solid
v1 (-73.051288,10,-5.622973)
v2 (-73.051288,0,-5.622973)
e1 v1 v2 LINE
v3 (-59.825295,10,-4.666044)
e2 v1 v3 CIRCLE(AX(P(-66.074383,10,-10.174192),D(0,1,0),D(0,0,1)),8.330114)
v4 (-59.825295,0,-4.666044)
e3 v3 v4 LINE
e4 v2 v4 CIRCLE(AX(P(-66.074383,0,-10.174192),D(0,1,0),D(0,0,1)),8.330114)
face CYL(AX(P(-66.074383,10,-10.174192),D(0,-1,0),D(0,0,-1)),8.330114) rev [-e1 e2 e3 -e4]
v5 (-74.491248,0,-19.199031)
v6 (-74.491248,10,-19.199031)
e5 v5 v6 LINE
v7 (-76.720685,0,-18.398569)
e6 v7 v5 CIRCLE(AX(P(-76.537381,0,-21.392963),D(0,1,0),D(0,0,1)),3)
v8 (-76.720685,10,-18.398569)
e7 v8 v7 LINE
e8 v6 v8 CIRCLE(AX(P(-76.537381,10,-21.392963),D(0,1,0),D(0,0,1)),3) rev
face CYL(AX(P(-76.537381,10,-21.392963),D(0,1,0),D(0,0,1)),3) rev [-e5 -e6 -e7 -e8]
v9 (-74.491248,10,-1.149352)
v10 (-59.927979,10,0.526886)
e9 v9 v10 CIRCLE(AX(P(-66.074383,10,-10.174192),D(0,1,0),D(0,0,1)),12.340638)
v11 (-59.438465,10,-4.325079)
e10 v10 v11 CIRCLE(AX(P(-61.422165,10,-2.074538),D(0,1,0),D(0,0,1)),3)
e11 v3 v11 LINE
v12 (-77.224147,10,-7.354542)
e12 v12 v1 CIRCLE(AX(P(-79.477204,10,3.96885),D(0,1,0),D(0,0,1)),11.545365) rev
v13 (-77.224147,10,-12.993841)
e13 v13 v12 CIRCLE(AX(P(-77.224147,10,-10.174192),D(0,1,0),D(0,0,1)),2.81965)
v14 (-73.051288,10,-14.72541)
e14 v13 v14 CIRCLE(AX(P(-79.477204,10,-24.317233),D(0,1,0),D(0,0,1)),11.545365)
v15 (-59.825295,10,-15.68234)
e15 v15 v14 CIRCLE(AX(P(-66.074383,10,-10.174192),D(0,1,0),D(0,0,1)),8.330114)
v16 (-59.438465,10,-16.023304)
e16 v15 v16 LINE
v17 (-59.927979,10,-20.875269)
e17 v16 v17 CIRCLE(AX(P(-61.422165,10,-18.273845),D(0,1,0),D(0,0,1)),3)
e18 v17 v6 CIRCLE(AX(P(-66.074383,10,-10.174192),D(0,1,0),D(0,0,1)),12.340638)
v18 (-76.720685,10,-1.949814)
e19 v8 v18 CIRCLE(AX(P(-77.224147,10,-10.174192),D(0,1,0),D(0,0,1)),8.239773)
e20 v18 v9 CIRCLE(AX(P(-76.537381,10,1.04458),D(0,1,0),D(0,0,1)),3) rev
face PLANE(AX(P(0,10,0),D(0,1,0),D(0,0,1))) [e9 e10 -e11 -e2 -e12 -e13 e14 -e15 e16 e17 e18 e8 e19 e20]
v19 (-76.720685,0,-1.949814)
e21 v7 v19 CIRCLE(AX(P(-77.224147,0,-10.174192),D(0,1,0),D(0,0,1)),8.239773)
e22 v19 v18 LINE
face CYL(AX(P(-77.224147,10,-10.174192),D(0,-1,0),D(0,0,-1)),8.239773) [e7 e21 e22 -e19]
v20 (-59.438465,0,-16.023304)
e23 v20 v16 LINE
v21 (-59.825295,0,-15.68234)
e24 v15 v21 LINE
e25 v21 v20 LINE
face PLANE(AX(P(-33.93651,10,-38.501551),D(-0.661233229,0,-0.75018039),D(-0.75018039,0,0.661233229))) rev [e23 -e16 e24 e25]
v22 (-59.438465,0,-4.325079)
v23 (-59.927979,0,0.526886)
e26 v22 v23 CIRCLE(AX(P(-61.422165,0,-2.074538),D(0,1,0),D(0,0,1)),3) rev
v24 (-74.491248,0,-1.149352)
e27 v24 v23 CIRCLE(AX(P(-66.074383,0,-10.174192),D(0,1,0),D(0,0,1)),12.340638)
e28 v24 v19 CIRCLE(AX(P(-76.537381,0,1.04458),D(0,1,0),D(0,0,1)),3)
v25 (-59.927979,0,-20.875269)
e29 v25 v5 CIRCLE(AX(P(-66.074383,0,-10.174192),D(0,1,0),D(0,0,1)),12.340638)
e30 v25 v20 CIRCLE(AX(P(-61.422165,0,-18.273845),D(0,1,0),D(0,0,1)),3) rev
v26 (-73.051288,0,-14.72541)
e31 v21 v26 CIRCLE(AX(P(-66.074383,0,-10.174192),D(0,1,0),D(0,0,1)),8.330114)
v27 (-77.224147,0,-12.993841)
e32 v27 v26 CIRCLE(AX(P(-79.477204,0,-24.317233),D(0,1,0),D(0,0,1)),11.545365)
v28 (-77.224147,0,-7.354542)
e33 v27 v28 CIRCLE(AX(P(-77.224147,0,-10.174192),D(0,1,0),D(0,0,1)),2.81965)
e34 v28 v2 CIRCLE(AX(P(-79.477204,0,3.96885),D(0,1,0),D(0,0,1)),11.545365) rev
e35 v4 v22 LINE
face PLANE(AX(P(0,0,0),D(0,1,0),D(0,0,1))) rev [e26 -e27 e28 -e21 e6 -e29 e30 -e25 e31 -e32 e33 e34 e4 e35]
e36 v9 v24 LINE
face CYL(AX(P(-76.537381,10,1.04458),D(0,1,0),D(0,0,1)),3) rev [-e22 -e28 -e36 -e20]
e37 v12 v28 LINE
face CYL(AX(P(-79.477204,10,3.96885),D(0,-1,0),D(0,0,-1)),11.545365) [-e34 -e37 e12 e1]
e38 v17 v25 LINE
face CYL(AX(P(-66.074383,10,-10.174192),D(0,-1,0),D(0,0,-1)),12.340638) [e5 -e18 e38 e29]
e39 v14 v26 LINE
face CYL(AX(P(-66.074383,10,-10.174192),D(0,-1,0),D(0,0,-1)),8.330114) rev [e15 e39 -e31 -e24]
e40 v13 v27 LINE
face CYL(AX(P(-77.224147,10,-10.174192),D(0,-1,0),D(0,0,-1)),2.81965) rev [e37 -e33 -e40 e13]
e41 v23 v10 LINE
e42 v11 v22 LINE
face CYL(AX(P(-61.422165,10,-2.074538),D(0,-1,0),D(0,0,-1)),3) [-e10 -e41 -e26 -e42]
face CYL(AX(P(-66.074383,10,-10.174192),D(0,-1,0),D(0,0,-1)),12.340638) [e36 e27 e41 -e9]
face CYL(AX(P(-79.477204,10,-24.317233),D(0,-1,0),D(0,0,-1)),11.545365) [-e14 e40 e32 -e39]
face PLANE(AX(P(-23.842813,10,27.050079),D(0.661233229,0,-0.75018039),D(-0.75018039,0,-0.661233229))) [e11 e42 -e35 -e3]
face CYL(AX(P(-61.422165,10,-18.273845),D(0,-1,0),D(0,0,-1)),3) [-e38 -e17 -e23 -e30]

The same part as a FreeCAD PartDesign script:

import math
import FreeCAD as App
import Part
import Sketcher
Q = App.Units.Quantity


def edges_at(feature, points):
    """Names of the edges that pass closest to the given points."""
    edges = feature.Shape.Edges
    near = lambda p: min(range(len(edges)), key=lambda i: edges[i].distToShape(Part.Vertex(*p))[0])
    return sorted({f"Edge{near(p) + 1}" for p in points})

doc = App.newDocument("Part")
body = doc.addObject("PartDesign::Body", "Body")

# Sketch on XZ plane
sketch1 = body.newObject("Sketcher::SketchObject", "Sketch")
sketch1.AttachmentSupport = (doc.getObject("XZ_Plane"), [""])
sketch1.MapMode = "FlatFace"
sketch1.addGeometry(Part.LineSegment(App.Vector(-59.8, -15.7, 0), App.Vector(-56.8, -18.3, 0)), False)
sketch1.addGeometry(Part.ArcOfCircle(Part.Circle(App.Vector(-66.1, -10.2, 0), App.Vector(0, 0, 1), 12.3), math.radians(-139), math.radians(-41)), False)
sketch1.addGeometry(Part.ArcOfCircle(Part.Circle(App.Vector(-77.2, -10.2, 0), App.Vector(0, 0, 1), 8.2), math.radians(77), math.radians(283)), False)
sketch1.addGeometry(Part.ArcOfCircle(Part.Circle(App.Vector(-66.1, -10.2, 0), App.Vector(0, 0, 1), 12.3), math.radians(41), math.radians(139)), False)
sketch1.addGeometry(Part.LineSegment(App.Vector(-56.8, -2, 0), App.Vector(-59.8, -4.7, 0)), False)
sketch1.addGeometry(Part.ArcOfCircle(Part.Circle(App.Vector(-66.1, -10.2, 0), App.Vector(0, 0, 1), 8.3), math.radians(41), math.radians(147)), False)
sketch1.addGeometry(Part.ArcOfCircle(Part.Circle(App.Vector(-79.5, 4, 0), App.Vector(0, 0, 1), 11.5), math.radians(-79), math.radians(-56)), False)
sketch1.addGeometry(Part.ArcOfCircle(Part.Circle(App.Vector(-77.2, -10.2, 0), App.Vector(0, 0, 1), 2.8), math.radians(90), math.radians(270)), False)
sketch1.addGeometry(Part.ArcOfCircle(Part.Circle(App.Vector(-79.5, -24.3, 0), App.Vector(0, 0, 1), 11.5), math.radians(56), math.radians(79)), False)
sketch1.addGeometry(Part.ArcOfCircle(Part.Circle(App.Vector(-66.1, -10.2, 0), App.Vector(0, 0, 1), 8.3), math.radians(-147), math.radians(-41)), False)
sketch1.addConstraint(Sketcher.Constraint("Coincident", 0, 2, 1, 2))
sketch1.addConstraint(Sketcher.Constraint("Coincident", 1, 1, 2, 2))
sketch1.addConstraint(Sketcher.Constraint("Coincident", 2, 1, 3, 2))
sketch1.addConstraint(Sketcher.Constraint("Coincident", 3, 1, 4, 1))
sketch1.addConstraint(Sketcher.Constraint("Coincident", 4, 2, 5, 1))
sketch1.addConstraint(Sketcher.Constraint("Coincident", 5, 2, 6, 2))
sketch1.addConstraint(Sketcher.Constraint("Coincident", 6, 1, 7, 1))
sketch1.addConstraint(Sketcher.Constraint("Coincident", 7, 2, 8, 2))
sketch1.addConstraint(Sketcher.Constraint("Coincident", 8, 1, 9, 1))
sketch1.addConstraint(Sketcher.Constraint("Coincident", 9, 2, 0, 1))
sketch1.addConstraint(Sketcher.Constraint("Coincident", 3, 3, 1, 3))
sketch1.addConstraint(Sketcher.Constraint("Coincident", 5, 3, 1, 3))
sketch1.addConstraint(Sketcher.Constraint("Coincident", 7, 3, 2, 3))
sketch1.addConstraint(Sketcher.Constraint("Coincident", 9, 3, 1, 3))
sketch1.addConstraint(Sketcher.Constraint("Equal", 1, 3))
sketch1.addConstraint(Sketcher.Constraint("Equal", 6, 8))
sketch1.addConstraint(Sketcher.Constraint("Equal", 5, 9))
sketch1.addConstraint(Sketcher.Constraint("Horizontal", 1, 3, 2, 3))
sketch1.addConstraint(Sketcher.Constraint("Vertical", 6, 3, 8, 3))
sketch1.addConstraint(Sketcher.Constraint("Vertical", 0, 2, 3, 1))
sketch1.addConstraint(Sketcher.Constraint("Vertical", 7, 3, 6, 1))
sketch1.addConstraint(Sketcher.Constraint("Vertical", 6, 1, 7, 2))
sketch1.addConstraint(Sketcher.Constraint("Vertical", 4, 2, 9, 2))
sketch1.addConstraint(Sketcher.Constraint("Radius", 7, Q("2.81965 mm")))
sketch1.addConstraint(Sketcher.Constraint("Radius", 1, Q("12.340638 mm")))
sketch1.addConstraint(Sketcher.Constraint("Radius", 2, Q("8.239773 mm")))
sketch1.addConstraint(Sketcher.Constraint("Radius", 5, Q("8.330114 mm")))
sketch1.addConstraint(Sketcher.Constraint("Radius", 6, Q("11.545365 mm")))
sketch1.addConstraint(Sketcher.Constraint("DistanceY", 1, 3, -1, 1, Q("10.174192 mm")))
sketch1.addConstraint(Sketcher.Constraint("DistanceY", -1, 1, 6, 3, Q("3.96885 mm")))
sketch1.addConstraint(Sketcher.Constraint("DistanceX", 0, 2, -1, 1, Q("56.816679 mm")))
sketch1.addConstraint(Sketcher.Constraint("DistanceY", 0, 2, -1, 1, Q("18.334231 mm")))
sketch1.addConstraint(Sketcher.Constraint("DistanceY", 1, 1, -1, 1, Q("18.21715 mm")))
sketch1.addConstraint(Sketcher.Constraint("DistanceY", 9, 2, -1, 1, Q("15.68234 mm")))
pad1 = body.newObject("PartDesign::Pad", "Pad")
pad1.Profile = sketch1
pad1.Length = 10
pad1.Reversed = True
doc.recompute()

fillet = body.newObject("PartDesign::Fillet", "Fillet")
fillet.Base = (pad1, edges_at(pad1, [
    (-56.817, 5, -2.014),
    (-75.434, 5, -2.131),
    (-75.434, 5, -18.217),
    (-56.817, 5, -18.334),
]))
fillet.Radius = 3

doc.recompute()
